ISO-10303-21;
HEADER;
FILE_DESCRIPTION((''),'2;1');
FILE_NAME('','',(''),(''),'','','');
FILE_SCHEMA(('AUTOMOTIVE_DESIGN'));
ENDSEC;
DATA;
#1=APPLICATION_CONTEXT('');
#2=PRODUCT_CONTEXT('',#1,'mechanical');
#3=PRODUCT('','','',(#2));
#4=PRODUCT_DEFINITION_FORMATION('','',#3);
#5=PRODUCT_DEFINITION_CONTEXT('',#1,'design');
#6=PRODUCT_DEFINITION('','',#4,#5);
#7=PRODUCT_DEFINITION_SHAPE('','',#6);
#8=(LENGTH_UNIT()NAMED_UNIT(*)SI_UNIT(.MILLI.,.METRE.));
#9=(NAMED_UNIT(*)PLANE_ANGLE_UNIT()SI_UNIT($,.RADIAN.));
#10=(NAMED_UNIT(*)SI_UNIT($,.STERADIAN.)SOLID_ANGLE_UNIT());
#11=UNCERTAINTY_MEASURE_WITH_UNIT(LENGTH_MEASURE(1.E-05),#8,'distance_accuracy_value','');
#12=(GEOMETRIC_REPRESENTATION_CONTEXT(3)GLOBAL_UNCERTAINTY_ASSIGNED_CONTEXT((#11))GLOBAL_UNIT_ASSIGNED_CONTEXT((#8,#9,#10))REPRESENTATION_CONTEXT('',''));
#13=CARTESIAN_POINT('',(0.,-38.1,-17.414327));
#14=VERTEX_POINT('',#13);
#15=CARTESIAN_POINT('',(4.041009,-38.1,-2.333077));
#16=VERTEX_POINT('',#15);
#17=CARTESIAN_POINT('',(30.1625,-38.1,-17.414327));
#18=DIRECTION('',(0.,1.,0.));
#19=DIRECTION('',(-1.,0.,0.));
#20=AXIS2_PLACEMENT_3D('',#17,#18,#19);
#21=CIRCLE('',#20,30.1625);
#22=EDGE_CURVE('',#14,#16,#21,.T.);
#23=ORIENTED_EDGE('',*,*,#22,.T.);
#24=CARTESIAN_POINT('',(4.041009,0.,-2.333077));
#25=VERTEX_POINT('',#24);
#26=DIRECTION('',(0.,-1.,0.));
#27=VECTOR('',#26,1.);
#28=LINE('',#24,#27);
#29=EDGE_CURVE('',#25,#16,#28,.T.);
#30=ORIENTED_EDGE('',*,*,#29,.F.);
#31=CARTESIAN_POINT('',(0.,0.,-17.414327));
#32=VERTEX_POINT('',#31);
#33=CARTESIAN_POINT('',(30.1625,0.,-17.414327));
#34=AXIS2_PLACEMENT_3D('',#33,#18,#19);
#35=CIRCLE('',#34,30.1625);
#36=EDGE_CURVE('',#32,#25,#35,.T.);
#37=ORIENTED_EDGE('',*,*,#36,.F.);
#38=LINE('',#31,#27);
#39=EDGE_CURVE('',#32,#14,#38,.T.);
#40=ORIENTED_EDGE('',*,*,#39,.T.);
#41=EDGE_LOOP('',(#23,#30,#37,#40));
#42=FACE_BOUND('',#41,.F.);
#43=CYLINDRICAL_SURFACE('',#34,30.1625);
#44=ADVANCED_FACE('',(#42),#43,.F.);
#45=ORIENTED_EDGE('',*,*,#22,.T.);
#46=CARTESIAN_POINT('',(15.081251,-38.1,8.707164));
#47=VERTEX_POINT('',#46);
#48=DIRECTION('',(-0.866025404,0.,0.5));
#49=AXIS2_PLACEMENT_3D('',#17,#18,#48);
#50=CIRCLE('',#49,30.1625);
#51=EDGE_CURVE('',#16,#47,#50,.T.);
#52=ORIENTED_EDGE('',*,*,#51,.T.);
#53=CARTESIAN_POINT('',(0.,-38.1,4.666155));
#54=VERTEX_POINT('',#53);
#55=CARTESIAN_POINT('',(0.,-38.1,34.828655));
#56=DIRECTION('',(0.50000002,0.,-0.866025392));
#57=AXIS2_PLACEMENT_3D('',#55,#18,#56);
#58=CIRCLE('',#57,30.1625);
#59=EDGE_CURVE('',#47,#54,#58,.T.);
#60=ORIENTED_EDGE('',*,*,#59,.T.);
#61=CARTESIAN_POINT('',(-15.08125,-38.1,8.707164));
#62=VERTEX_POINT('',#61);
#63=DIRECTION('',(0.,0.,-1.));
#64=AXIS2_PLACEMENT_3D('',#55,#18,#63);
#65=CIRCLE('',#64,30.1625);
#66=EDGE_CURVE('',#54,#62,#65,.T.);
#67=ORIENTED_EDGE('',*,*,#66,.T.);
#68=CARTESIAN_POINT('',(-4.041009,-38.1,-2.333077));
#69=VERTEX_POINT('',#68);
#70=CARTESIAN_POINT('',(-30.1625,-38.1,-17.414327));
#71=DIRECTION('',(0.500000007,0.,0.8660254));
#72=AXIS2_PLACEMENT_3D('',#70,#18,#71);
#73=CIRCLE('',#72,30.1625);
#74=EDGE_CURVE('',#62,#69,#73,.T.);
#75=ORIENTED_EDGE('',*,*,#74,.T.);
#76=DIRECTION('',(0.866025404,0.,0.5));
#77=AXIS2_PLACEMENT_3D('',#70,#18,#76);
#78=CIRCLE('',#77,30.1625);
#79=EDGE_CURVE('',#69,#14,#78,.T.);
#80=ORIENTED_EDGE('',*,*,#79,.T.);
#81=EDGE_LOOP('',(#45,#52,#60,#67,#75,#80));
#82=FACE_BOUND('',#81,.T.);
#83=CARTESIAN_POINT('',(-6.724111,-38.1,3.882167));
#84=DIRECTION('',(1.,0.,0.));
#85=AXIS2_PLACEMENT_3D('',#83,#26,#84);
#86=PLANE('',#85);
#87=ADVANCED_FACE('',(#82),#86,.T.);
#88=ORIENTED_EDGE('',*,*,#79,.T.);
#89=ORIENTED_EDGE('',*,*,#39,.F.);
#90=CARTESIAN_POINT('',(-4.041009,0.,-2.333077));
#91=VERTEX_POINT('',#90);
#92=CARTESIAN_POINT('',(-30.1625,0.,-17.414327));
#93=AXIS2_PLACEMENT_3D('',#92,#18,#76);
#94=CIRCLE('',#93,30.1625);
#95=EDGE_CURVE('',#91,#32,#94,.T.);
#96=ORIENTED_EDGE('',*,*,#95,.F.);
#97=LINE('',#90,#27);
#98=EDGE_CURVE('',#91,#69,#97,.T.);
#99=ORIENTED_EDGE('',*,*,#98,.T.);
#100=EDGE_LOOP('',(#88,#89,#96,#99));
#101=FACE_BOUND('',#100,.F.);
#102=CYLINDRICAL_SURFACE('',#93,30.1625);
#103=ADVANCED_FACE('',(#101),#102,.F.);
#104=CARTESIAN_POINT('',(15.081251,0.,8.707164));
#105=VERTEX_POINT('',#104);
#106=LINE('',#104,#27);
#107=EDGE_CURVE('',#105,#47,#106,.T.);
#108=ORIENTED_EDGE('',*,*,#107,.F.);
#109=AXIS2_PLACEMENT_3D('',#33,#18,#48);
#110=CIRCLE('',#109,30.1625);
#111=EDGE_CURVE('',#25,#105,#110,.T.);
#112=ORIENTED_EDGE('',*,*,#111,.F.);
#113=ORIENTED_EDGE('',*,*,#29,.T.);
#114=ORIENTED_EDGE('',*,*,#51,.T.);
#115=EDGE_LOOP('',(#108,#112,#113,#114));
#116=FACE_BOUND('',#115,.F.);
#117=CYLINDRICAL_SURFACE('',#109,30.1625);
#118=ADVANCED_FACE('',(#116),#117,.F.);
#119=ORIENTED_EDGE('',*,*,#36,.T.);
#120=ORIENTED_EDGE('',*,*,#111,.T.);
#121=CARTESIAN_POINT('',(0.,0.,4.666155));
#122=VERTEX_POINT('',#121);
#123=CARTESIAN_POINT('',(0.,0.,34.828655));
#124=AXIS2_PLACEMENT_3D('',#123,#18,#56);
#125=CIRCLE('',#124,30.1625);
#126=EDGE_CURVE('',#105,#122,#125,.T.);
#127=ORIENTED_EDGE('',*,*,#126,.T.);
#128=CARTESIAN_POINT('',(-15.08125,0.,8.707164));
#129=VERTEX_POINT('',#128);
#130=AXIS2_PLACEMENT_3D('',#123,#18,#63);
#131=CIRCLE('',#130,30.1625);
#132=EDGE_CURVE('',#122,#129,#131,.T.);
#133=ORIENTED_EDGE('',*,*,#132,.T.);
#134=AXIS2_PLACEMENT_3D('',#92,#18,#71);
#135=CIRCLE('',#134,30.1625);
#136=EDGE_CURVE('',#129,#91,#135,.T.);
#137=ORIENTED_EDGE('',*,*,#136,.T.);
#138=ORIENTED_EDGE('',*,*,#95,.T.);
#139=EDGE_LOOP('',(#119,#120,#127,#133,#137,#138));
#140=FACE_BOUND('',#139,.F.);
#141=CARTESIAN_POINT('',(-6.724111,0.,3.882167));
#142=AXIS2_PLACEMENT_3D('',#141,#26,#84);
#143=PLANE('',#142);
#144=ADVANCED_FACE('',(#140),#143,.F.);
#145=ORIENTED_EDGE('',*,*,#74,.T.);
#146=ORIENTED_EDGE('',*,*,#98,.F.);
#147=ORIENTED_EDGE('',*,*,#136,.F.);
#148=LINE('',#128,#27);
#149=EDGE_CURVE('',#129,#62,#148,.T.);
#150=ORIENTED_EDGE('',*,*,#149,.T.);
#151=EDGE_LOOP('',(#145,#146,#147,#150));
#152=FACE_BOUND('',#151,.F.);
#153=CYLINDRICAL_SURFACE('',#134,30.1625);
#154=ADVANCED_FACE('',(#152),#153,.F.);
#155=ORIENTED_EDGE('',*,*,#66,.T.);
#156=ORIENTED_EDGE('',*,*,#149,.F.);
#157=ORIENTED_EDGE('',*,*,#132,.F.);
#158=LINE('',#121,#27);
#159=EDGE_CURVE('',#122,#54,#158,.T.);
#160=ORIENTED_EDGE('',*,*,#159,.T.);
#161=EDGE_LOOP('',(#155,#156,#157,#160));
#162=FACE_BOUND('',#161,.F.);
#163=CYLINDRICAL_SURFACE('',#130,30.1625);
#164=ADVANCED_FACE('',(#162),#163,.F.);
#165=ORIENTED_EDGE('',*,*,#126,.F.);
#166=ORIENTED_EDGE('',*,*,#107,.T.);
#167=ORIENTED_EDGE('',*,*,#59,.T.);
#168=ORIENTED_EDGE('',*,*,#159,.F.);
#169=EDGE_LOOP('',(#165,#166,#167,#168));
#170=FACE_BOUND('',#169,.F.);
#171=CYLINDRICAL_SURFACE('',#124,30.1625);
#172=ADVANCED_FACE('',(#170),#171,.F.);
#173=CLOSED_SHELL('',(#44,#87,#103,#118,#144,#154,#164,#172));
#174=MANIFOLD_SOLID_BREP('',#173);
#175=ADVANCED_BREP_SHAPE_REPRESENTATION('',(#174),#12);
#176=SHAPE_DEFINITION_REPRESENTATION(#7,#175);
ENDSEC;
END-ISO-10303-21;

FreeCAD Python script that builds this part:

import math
import FreeCAD as App
import Part
import Sketcher
from FreeCAD import Vector
Q = App.Units.Quantity

doc = App.newDocument("Part")
body = doc.addObject("PartDesign::Body", "Body")

sketch1 = doc.addObject("Sketcher::SketchObject", "Sketch")
body.addObject(sketch1)
sketch1.AttachmentSupport = (doc.XZ_Plane, [""])
sketch1.MapMode = "FlatFace"
sketch1.addGeometry(Part.ArcOfCircle(Part.Circle(Vector(30, -17, 0), Vector(0, 0, 1), 30), math.radians(120), math.radians(150)), False)
sketch1.addGeometry(Part.ArcOfCircle(Part.Circle(Vector(0, 35, 0), Vector(0, 0, 1), 30), math.radians(-90), math.radians(-60)), False)
sketch1.addGeometry(Part.ArcOfCircle(Part.Circle(Vector(0, 35, 0), Vector(0, 0, 1), 30), math.radians(-120), math.radians(-90)), False)
sketch1.addGeometry(Part.ArcOfCircle(Part.Circle(Vector(-30, -17, 0), Vector(0, 0, 1), 30), math.radians(30), math.radians(60)), False)
sketch1.addGeometry(Part.ArcOfCircle(Part.Circle(Vector(-30, -17, 0), Vector(0, 0, 1), 30), math.radians(0), math.radians(30)), False)
sketch1.addGeometry(Part.ArcOfCircle(Part.Circle(Vector(30, -17, 0), Vector(0, 0, 1), 30), math.radians(150), math.radians(180)), False)
sketch1.addConstraint(Sketcher.Constraint("Tangent", 0, 1, 1, 2))
sketch1.addConstraint(Sketcher.Constraint("Tangent", 1, 1, 2, 2))
sketch1.addConstraint(Sketcher.Constraint("Tangent", 2, 1, 3, 2))
sketch1.addConstraint(Sketcher.Constraint("Tangent", 3, 1, 4, 2))
sketch1.addConstraint(Sketcher.Constraint("Tangent", 4, 1, 5, 2))
sketch1.addConstraint(Sketcher.Constraint("Tangent", 5, 1, 0, 2))
sketch1.addConstraint(Sketcher.Constraint("Equal", 0, 1))
sketch1.addConstraint(Sketcher.Constraint("Equal", 1, 2))
sketch1.addConstraint(Sketcher.Constraint("Equal", 2, 3))
sketch1.addConstraint(Sketcher.Constraint("Equal", 3, 4))
sketch1.addConstraint(Sketcher.Constraint("Equal", 4, 5))
sketch1.addConstraint(Sketcher.Constraint("Symmetric", 0, 3, 3, 3, -2))
sketch1.addConstraint(Sketcher.Constraint("PointOnObject", 1, 1, -2))
sketch1.addConstraint(Sketcher.Constraint("Horizontal", 3, 1, 5, 1))
sketch1.addConstraint(Sketcher.Constraint("Radius", 0, Q("1.1875 in")))
sketch1.addConstraint(Sketcher.Constraint("DistanceY", 3, 3, 3, 1, Q("0.59375 in")))
sketch1.addConstraint(Sketcher.Constraint("DistanceY", 0, 3, -1, 1, Q("17.414327 mm")))
pad1 = doc.addObject("PartDesign::Pad", "Pad")
body.addObject(pad1)
pad1.Profile = sketch1
pad1.Length = Q("1.5 in")

doc.recompute()
